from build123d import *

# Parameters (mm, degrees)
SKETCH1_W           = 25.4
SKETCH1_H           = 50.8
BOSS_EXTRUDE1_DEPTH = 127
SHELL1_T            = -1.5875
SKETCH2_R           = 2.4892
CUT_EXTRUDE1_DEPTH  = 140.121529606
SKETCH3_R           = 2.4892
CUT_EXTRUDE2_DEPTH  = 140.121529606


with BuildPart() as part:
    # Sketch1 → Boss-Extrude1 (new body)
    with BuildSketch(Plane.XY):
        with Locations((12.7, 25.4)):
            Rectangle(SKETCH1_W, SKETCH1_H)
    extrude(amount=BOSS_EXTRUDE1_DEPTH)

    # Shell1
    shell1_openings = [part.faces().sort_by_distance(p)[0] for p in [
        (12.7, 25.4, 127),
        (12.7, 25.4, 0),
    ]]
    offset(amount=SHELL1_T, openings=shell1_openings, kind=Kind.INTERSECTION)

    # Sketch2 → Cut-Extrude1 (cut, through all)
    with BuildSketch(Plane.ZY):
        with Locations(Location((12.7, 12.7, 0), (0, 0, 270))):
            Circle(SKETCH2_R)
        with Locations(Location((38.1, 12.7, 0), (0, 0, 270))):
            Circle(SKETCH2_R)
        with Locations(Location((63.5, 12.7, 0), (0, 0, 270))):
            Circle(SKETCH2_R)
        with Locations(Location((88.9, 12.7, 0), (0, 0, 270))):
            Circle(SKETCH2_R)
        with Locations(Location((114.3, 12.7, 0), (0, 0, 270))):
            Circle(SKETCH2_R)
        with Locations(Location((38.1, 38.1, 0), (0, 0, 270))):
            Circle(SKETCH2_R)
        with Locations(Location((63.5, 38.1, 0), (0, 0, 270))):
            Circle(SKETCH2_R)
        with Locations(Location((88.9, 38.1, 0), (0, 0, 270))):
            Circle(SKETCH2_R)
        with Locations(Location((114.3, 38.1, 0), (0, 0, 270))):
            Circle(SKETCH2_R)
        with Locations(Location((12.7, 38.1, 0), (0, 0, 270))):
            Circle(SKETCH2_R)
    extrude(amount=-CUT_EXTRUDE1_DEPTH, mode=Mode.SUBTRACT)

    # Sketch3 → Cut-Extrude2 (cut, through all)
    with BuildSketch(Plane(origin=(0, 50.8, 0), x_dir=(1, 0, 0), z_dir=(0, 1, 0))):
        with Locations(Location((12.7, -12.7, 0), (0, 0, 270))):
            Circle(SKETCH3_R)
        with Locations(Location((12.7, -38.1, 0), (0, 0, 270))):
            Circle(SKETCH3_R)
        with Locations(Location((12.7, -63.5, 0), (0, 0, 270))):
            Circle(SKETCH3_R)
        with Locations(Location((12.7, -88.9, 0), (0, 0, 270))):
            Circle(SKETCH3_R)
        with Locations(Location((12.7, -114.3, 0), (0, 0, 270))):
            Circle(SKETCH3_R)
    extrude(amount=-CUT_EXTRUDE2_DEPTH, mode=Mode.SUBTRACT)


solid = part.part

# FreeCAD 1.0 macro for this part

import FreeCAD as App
import Part
import Sketcher
from FreeCAD import Vector
Q = App.Units.Quantity


def faces_at(feature, points):
    """Names of the faces that lie closest to the given points."""
    faces = feature.Shape.Faces
    near = lambda p: min(range(len(faces)), key=lambda i: faces[i].distToShape(Part.Vertex(*p))[0])
    return sorted({f"Face{near(p) + 1}" for p in points})


def add_polygon(sketch, points):
    """Adds a closed chain of lines whose ends are joined by coincident constraints."""
    first, n = sketch.GeometryCount, len(points)
    for a, b in zip(points, points[1:] + points[:1]):
        sketch.addGeometry(Part.LineSegment(App.Vector(*a, 0), App.Vector(*b, 0)), False)
    for i in range(n):
        sketch.addConstraint(Sketcher.Constraint("Coincident", first + i, 2, first + (i + 1) % n, 1))

doc = App.newDocument("Part")
body = doc.addObject("PartDesign::Body", "Body")

sketch1 = doc.addObject("Sketcher::SketchObject", "Sketch")
body.addObject(sketch1)
sketch1.AttachmentSupport = (doc.XY_Plane, [""])
sketch1.MapMode = "FlatFace"
add_polygon(sketch1, [(0, 50.8), (0, 0), (25.4, 0), (25.4, 50.8)])
sketch1.addConstraint(Sketcher.Constraint("Vertical", 0))
sketch1.addConstraint(Sketcher.Constraint("Horizontal", 1))
sketch1.addConstraint(Sketcher.Constraint("Vertical", 2))
sketch1.addConstraint(Sketcher.Constraint("Horizontal", 3))
sketch1.addConstraint(Sketcher.Constraint("Coincident", 0, 2, -1, 1))
sketch1.addConstraint(Sketcher.Constraint("DistanceX", 1, 1, 1, 2, Q("1 in")))
sketch1.addConstraint(Sketcher.Constraint("DistanceY", 0, 2, 0, 1, Q("2 in")))
pad1 = doc.addObject("PartDesign::Pad", "Pad")
body.addObject(pad1)
pad1.Profile = sketch1
pad1.Length = Q("5 in")
doc.recompute()

thickness = doc.addObject("PartDesign::Thickness", "Thickness")
body.addObject(thickness)
thickness.Base = (pad1, faces_at(pad1, [(12.7, 25.4, 127), (12.7, 25.4, 0)]))
thickness.Value = Q("0.0625 in")
thickness.Reversed = True
thickness.Join = "Intersection"

sketch2 = doc.addObject("Sketcher::SketchObject", "Sketch001")
body.addObject(sketch2)
sketch2.AttachmentSupport = (doc.YZ_Plane, [""])
sketch2.MapMode = "FlatFace"
sketch2.addGeometry(Part.Circle(Vector(12.7, 12.7, 0), Vector(0, 0, 1), 2.4892), False)
sketch2.addGeometry(Part.Circle(Vector(12.7, 38.1, 0), Vector(0, 0, 1), 2.4892), False)
sketch2.addGeometry(Part.Circle(Vector(12.7, 63.5, 0), Vector(0, 0, 1), 2.4892), False)
sketch2.addGeometry(Part.Circle(Vector(12.7, 88.9, 0), Vector(0, 0, 1), 2.4892), False)
sketch2.addGeometry(Part.Circle(Vector(12.7, 114.3, 0), Vector(0, 0, 1), 2.4892), False)
sketch2.addGeometry(Part.Circle(Vector(38.1, 38.1, 0), Vector(0, 0, 1), 2.4892), False)
sketch2.addGeometry(Part.Circle(Vector(38.1, 63.5, 0), Vector(0, 0, 1), 2.4892), False)
sketch2.addGeometry(Part.Circle(Vector(38.1, 88.9, 0), Vector(0, 0, 1), 2.4892), False)
sketch2.addGeometry(Part.Circle(Vector(38.1, 114.3, 0), Vector(0, 0, 1), 2.4892), False)
sketch2.addGeometry(Part.Circle(Vector(38.1, 12.7, 0), Vector(0, 0, 1), 2.4892), False)
sketch2.addConstraint(Sketcher.Constraint("Equal", 0, 1))
sketch2.addConstraint(Sketcher.Constraint("Equal", 1, 2))
sketch2.addConstraint(Sketcher.Constraint("Equal", 2, 3))
sketch2.addConstraint(Sketcher.Constraint("Equal", 3, 4))
sketch2.addConstraint(Sketcher.Constraint("Equal", 4, 5))
sketch2.addConstraint(Sketcher.Constraint("Equal", 5, 6))
sketch2.addConstraint(Sketcher.Constraint("Equal", 6, 7))
sketch2.addConstraint(Sketcher.Constraint("Equal", 7, 8))
sketch2.addConstraint(Sketcher.Constraint("Equal", 8, 9))
sketch2.addConstraint(Sketcher.Constraint("Horizontal", 1, 3, 5, 3))
sketch2.addConstraint(Sketcher.Constraint("Horizontal", 2, 3, 6, 3))
sketch2.addConstraint(Sketcher.Constraint("Horizontal", 3, 3, 7, 3))
sketch2.addConstraint(Sketcher.Constraint("Horizontal", 4, 3, 8, 3))
sketch2.addConstraint(Sketcher.Constraint("Horizontal", 0, 3, 9, 3))
sketch2.addConstraint(Sketcher.Constraint("Vertical", 0, 3, 1, 3))
sketch2.addConstraint(Sketcher.Constraint("Vertical", 1, 3, 2, 3))
sketch2.addConstraint(Sketcher.Constraint("Vertical", 2, 3, 3, 3))
sketch2.addConstraint(Sketcher.Constraint("Vertical", 3, 3, 4, 3))
sketch2.addConstraint(Sketcher.Constraint("Vertical", 5, 3, 6, 3))
sketch2.addConstraint(Sketcher.Constraint("Vertical", 6, 3, 7, 3))
sketch2.addConstraint(Sketcher.Constraint("Vertical", 7, 3, 8, 3))
sketch2.addConstraint(Sketcher.Constraint("Vertical", 8, 3, 9, 3))
sketch2.addConstraint(Sketcher.Constraint("Diameter", 0, Q("0.196 in")))
sketch2.addConstraint(Sketcher.Constraint("DistanceY", 0, 3, 1, 3, Q("1 in")))
sketch2.addConstraint(Sketcher.Constraint("DistanceY", 1, 3, 2, 3, Q("1 in")))
sketch2.addConstraint(Sketcher.Constraint("DistanceY", 2, 3, 3, 3, Q("1 in")))
sketch2.addConstraint(Sketcher.Constraint("DistanceY", 3, 3, 4, 3, Q("1 in")))
sketch2.addConstraint(Sketcher.Constraint("DistanceX", 1, 3, 5, 3, Q("1 in")))
sketch2.addConstraint(Sketcher.Constraint("DistanceX", -1, 1, 0, 3, Q("0.5 in")))
sketch2.addConstraint(Sketcher.Constraint("DistanceY", -1, 1, 0, 3, Q("0.5 in")))
pocket1 = doc.addObject("PartDesign::Pocket", "Pocket")
body.addObject(pocket1)
pocket1.Profile = sketch2
pocket1.Type = "ThroughAll"
pocket1.Reversed = True

sketch3 = doc.addObject("Sketcher::SketchObject", "Sketch002")
body.addObject(sketch3)
sketch3.AttachmentSupport = (doc.XZ_Plane, [""])
sketch3.MapMode = "FlatFace"
sketch3.AttachmentOffset = App.Placement(Vector(0, 0, -2 * 25.4), App.Rotation())
sketch3.addGeometry(Part.Circle(Vector(12.7, 12.7, 0), Vector(0, 0, 1), 2.4892), False)
sketch3.addGeometry(Part.Circle(Vector(12.7, 38.1, 0), Vector(0, 0, 1), 2.4892), False)
sketch3.addGeometry(Part.Circle(Vector(12.7, 63.5, 0), Vector(0, 0, 1), 2.4892), False)
sketch3.addGeometry(Part.Circle(Vector(12.7, 88.9, 0), Vector(0, 0, 1), 2.4892), False)
sketch3.addGeometry(Part.Circle(Vector(12.7, 114.3, 0), Vector(0, 0, 1), 2.4892), False)
sketch3.addConstraint(Sketcher.Constraint("Equal", 0, 1))
sketch3.addConstraint(Sketcher.Constraint("Equal", 1, 2))
sketch3.addConstraint(Sketcher.Constraint("Equal", 2, 3))
sketch3.addConstraint(Sketcher.Constraint("Equal", 3, 4))
sketch3.addConstraint(Sketcher.Constraint("Vertical", 0, 3, 1, 3))
sketch3.addConstraint(Sketcher.Constraint("Vertical", 1, 3, 2, 3))
sketch3.addConstraint(Sketcher.Constraint("Vertical", 2, 3, 3, 3))
sketch3.addConstraint(Sketcher.Constraint("Vertical", 3, 3, 4, 3))
sketch3.addConstraint(Sketcher.Constraint("Diameter", 0, Q("0.196 in")))
sketch3.addConstraint(Sketcher.Constraint("DistanceY", 0, 3, 1, 3, Q("1 in")))
sketch3.addConstraint(Sketcher.Constraint("DistanceY", 1, 3, 2, 3, Q("1 in")))
sketch3.addConstraint(Sketcher.Constraint("DistanceY", 2, 3, 3, 3, Q("1 in")))
sketch3.addConstraint(Sketcher.Constraint("DistanceY", 3, 3, 4, 3, Q("1 in")))
sketch3.addConstraint(Sketcher.Constraint("DistanceX", -1, 1, 0, 3, Q("0.5 in")))
sketch3.addConstraint(Sketcher.Constraint("DistanceY", -1, 1, 0, 3, Q("0.5 in")))
pocket2 = doc.addObject("PartDesign::Pocket", "Pocket001")
body.addObject(pocket2)
pocket2.Profile = sketch3
pocket2.Type = "ThroughAll"
pocket2.Reversed = True

doc.recompute()
